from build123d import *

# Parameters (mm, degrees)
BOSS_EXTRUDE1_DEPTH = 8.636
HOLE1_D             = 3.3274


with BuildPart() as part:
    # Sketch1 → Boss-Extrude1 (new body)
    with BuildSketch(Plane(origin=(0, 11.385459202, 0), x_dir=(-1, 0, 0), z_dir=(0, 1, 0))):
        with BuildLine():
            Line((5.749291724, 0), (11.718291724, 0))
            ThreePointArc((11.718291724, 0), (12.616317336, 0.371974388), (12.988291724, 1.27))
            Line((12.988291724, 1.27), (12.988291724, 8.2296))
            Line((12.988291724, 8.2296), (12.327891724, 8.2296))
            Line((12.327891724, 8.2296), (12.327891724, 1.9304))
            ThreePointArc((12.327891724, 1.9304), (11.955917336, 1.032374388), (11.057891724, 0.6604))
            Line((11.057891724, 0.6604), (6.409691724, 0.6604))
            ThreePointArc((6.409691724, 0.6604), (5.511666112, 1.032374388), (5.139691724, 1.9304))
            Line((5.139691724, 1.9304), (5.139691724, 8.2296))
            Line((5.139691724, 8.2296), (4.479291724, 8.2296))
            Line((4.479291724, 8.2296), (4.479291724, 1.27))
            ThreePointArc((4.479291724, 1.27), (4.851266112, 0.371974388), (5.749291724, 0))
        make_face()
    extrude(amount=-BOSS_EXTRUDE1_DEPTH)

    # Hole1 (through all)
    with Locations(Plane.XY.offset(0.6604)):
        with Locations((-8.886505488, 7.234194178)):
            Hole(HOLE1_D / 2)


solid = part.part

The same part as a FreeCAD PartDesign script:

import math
import FreeCAD as App
import Part
import Sketcher

V = App.Vector
Q = App.Units.Quantity

doc = App.newDocument("Part")
body = doc.addObject("PartDesign::Body", "Body")

# Sketch on XZ plane
sketch1 = body.newObject("Sketcher::SketchObject", "Sketch")
sketch1.AttachmentSupport = (doc.getObject("XZ_Plane"), [""])
sketch1.MapMode = "FlatFace"
sketch1.AttachmentOffset = App.Placement(V(0, 0, -11.385459), App.Rotation())
sketch1.addGeometry(Part.LineSegment(V(-5.749292, 0, 0), V(-11.718292, 0, 0)), False)
sketch1.addGeometry(Part.ArcOfCircle(Part.Circle(V(-11.718292, 1.27, 0), V(0, 0, 1), 1.27), math.radians(180), math.radians(270)), False)
sketch1.addGeometry(Part.LineSegment(V(-12.988292, 1.27, 0), V(-12.988292, 8.2296, 0)), False)
sketch1.addGeometry(Part.LineSegment(V(-12.988292, 8.2296, 0), V(-12.327892, 8.2296, 0)), False)
sketch1.addGeometry(Part.LineSegment(V(-12.327892, 8.2296, 0), V(-12.327892, 1.9304, 0)), False)
sketch1.addGeometry(Part.ArcOfCircle(Part.Circle(V(-11.057892, 1.9304, 0), V(0, 0, 1), 1.27), math.radians(180), math.radians(270)), False)
sketch1.addGeometry(Part.LineSegment(V(-11.057892, 0.6604, 0), V(-6.409692, 0.6604, 0)), False)
sketch1.addGeometry(Part.ArcOfCircle(Part.Circle(V(-6.409692, 1.9304, 0), V(0, 0, 1), 1.27), math.radians(-90), math.radians(0)), False)
sketch1.addGeometry(Part.LineSegment(V(-5.139692, 1.9304, 0), V(-5.139692, 8.2296, 0)), False)
sketch1.addGeometry(Part.LineSegment(V(-5.139692, 8.2296, 0), V(-4.479292, 8.2296, 0)), False)
sketch1.addGeometry(Part.LineSegment(V(-4.479292, 8.2296, 0), V(-4.479292, 1.27, 0)), False)
sketch1.addGeometry(Part.ArcOfCircle(Part.Circle(V(-5.749292, 1.27, 0), V(0, 0, 1), 1.27), math.radians(-90), math.radians(0)), False)
sketch1.addConstraint(Sketcher.Constraint("Tangent", 0, 2, 1, 2))
sketch1.addConstraint(Sketcher.Constraint("Tangent", 1, 1, 2, 1))
sketch1.addConstraint(Sketcher.Constraint("Coincident", 2, 2, 3, 1))
sketch1.addConstraint(Sketcher.Constraint("Coincident", 3, 2, 4, 1))
sketch1.addConstraint(Sketcher.Constraint("Tangent", 4, 2, 5, 1))
sketch1.addConstraint(Sketcher.Constraint("Tangent", 5, 2, 6, 1))
sketch1.addConstraint(Sketcher.Constraint("Tangent", 6, 2, 7, 1))
sketch1.addConstraint(Sketcher.Constraint("Tangent", 7, 2, 8, 1))
sketch1.addConstraint(Sketcher.Constraint("Coincident", 8, 2, 9, 1))
sketch1.addConstraint(Sketcher.Constraint("Coincident", 9, 2, 10, 1))
sketch1.addConstraint(Sketcher.Constraint("Tangent", 10, 2, 11, 2))
sketch1.addConstraint(Sketcher.Constraint("Tangent", 11, 1, 0, 1))
sketch1.addConstraint(Sketcher.Constraint("Horizontal", 0))
sketch1.addConstraint(Sketcher.Constraint("Vertical", 2))
sketch1.addConstraint(Sketcher.Constraint("Horizontal", 3))
sketch1.addConstraint(Sketcher.Constraint("Vertical", 4))
sketch1.addConstraint(Sketcher.Constraint("Horizontal", 6))
sketch1.addConstraint(Sketcher.Constraint("Vertical", 8))
sketch1.addConstraint(Sketcher.Constraint("Horizontal", 9))
sketch1.addConstraint(Sketcher.Constraint("Vertical", 10))
sketch1.addConstraint(Sketcher.Constraint("Equal", 1, 5))
sketch1.addConstraint(Sketcher.Constraint("Equal", 5, 7))
sketch1.addConstraint(Sketcher.Constraint("Equal", 7, 11))
sketch1.addConstraint(Sketcher.Constraint("PointOnObject", 0, 2, -1))
sketch1.addConstraint(Sketcher.Constraint("Horizontal", 3, 2, 8, 2))
sketch1.addConstraint(Sketcher.Constraint("Equal", 3, 9))
sketch1.addConstraint(Sketcher.Constraint("Radius", 1, Q("0.05 in")))
sketch1.addConstraint(Sketcher.Constraint("DistanceX", 0, 2, 0, 1, Q("0.235 in")))
sketch1.addConstraint(Sketcher.Constraint("DistanceX", 3, 1, 3, 2, Q("0.026 in")))
sketch1.addConstraint(Sketcher.Constraint("DistanceY", 2, 1, 2, 2, Q("0.274 in")))
sketch1.addConstraint(Sketcher.Constraint("DistanceY", 4, 2, 4, 1, Q("0.248 in")))
sketch1.addConstraint(Sketcher.Constraint("DistanceX", 1, 3, -1, 1, 11.718292))
pad1 = body.newObject("PartDesign::Pad", "Pad")
pad1.Profile = sketch1
pad1.Length = Q("0.34 in")

# Sketch on XY plane
sketch2 = body.newObject("Sketcher::SketchObject", "Sketch001")
sketch2.AttachmentSupport = (doc.getObject("XY_Plane"), [""])
sketch2.MapMode = "FlatFace"
sketch2.AttachmentOffset = App.Placement(V(0, 0, 0.026 * 25.4), App.Rotation())
sketch2.addGeometry(Part.Circle(V(-8.886505, 7.234194, 0), V(0, 0, 1), 1.6637), False)
sketch2.addConstraint(Sketcher.Constraint("Diameter", 0, Q("0.131 in")))
sketch2.addConstraint(Sketcher.Constraint("DistanceX", 0, 3, -1, 1, 8.886505))
sketch2.addConstraint(Sketcher.Constraint("DistanceY", -1, 1, 0, 3, 7.234194))
doc.recompute()
hole = body.newObject("PartDesign::Hole", "Hole")
hole.Profile = sketch2
hole.ThreadType = "None"
hole.Diameter = Q("0.131 in")
hole.DepthType = "ThroughAll"

doc.recompute()
